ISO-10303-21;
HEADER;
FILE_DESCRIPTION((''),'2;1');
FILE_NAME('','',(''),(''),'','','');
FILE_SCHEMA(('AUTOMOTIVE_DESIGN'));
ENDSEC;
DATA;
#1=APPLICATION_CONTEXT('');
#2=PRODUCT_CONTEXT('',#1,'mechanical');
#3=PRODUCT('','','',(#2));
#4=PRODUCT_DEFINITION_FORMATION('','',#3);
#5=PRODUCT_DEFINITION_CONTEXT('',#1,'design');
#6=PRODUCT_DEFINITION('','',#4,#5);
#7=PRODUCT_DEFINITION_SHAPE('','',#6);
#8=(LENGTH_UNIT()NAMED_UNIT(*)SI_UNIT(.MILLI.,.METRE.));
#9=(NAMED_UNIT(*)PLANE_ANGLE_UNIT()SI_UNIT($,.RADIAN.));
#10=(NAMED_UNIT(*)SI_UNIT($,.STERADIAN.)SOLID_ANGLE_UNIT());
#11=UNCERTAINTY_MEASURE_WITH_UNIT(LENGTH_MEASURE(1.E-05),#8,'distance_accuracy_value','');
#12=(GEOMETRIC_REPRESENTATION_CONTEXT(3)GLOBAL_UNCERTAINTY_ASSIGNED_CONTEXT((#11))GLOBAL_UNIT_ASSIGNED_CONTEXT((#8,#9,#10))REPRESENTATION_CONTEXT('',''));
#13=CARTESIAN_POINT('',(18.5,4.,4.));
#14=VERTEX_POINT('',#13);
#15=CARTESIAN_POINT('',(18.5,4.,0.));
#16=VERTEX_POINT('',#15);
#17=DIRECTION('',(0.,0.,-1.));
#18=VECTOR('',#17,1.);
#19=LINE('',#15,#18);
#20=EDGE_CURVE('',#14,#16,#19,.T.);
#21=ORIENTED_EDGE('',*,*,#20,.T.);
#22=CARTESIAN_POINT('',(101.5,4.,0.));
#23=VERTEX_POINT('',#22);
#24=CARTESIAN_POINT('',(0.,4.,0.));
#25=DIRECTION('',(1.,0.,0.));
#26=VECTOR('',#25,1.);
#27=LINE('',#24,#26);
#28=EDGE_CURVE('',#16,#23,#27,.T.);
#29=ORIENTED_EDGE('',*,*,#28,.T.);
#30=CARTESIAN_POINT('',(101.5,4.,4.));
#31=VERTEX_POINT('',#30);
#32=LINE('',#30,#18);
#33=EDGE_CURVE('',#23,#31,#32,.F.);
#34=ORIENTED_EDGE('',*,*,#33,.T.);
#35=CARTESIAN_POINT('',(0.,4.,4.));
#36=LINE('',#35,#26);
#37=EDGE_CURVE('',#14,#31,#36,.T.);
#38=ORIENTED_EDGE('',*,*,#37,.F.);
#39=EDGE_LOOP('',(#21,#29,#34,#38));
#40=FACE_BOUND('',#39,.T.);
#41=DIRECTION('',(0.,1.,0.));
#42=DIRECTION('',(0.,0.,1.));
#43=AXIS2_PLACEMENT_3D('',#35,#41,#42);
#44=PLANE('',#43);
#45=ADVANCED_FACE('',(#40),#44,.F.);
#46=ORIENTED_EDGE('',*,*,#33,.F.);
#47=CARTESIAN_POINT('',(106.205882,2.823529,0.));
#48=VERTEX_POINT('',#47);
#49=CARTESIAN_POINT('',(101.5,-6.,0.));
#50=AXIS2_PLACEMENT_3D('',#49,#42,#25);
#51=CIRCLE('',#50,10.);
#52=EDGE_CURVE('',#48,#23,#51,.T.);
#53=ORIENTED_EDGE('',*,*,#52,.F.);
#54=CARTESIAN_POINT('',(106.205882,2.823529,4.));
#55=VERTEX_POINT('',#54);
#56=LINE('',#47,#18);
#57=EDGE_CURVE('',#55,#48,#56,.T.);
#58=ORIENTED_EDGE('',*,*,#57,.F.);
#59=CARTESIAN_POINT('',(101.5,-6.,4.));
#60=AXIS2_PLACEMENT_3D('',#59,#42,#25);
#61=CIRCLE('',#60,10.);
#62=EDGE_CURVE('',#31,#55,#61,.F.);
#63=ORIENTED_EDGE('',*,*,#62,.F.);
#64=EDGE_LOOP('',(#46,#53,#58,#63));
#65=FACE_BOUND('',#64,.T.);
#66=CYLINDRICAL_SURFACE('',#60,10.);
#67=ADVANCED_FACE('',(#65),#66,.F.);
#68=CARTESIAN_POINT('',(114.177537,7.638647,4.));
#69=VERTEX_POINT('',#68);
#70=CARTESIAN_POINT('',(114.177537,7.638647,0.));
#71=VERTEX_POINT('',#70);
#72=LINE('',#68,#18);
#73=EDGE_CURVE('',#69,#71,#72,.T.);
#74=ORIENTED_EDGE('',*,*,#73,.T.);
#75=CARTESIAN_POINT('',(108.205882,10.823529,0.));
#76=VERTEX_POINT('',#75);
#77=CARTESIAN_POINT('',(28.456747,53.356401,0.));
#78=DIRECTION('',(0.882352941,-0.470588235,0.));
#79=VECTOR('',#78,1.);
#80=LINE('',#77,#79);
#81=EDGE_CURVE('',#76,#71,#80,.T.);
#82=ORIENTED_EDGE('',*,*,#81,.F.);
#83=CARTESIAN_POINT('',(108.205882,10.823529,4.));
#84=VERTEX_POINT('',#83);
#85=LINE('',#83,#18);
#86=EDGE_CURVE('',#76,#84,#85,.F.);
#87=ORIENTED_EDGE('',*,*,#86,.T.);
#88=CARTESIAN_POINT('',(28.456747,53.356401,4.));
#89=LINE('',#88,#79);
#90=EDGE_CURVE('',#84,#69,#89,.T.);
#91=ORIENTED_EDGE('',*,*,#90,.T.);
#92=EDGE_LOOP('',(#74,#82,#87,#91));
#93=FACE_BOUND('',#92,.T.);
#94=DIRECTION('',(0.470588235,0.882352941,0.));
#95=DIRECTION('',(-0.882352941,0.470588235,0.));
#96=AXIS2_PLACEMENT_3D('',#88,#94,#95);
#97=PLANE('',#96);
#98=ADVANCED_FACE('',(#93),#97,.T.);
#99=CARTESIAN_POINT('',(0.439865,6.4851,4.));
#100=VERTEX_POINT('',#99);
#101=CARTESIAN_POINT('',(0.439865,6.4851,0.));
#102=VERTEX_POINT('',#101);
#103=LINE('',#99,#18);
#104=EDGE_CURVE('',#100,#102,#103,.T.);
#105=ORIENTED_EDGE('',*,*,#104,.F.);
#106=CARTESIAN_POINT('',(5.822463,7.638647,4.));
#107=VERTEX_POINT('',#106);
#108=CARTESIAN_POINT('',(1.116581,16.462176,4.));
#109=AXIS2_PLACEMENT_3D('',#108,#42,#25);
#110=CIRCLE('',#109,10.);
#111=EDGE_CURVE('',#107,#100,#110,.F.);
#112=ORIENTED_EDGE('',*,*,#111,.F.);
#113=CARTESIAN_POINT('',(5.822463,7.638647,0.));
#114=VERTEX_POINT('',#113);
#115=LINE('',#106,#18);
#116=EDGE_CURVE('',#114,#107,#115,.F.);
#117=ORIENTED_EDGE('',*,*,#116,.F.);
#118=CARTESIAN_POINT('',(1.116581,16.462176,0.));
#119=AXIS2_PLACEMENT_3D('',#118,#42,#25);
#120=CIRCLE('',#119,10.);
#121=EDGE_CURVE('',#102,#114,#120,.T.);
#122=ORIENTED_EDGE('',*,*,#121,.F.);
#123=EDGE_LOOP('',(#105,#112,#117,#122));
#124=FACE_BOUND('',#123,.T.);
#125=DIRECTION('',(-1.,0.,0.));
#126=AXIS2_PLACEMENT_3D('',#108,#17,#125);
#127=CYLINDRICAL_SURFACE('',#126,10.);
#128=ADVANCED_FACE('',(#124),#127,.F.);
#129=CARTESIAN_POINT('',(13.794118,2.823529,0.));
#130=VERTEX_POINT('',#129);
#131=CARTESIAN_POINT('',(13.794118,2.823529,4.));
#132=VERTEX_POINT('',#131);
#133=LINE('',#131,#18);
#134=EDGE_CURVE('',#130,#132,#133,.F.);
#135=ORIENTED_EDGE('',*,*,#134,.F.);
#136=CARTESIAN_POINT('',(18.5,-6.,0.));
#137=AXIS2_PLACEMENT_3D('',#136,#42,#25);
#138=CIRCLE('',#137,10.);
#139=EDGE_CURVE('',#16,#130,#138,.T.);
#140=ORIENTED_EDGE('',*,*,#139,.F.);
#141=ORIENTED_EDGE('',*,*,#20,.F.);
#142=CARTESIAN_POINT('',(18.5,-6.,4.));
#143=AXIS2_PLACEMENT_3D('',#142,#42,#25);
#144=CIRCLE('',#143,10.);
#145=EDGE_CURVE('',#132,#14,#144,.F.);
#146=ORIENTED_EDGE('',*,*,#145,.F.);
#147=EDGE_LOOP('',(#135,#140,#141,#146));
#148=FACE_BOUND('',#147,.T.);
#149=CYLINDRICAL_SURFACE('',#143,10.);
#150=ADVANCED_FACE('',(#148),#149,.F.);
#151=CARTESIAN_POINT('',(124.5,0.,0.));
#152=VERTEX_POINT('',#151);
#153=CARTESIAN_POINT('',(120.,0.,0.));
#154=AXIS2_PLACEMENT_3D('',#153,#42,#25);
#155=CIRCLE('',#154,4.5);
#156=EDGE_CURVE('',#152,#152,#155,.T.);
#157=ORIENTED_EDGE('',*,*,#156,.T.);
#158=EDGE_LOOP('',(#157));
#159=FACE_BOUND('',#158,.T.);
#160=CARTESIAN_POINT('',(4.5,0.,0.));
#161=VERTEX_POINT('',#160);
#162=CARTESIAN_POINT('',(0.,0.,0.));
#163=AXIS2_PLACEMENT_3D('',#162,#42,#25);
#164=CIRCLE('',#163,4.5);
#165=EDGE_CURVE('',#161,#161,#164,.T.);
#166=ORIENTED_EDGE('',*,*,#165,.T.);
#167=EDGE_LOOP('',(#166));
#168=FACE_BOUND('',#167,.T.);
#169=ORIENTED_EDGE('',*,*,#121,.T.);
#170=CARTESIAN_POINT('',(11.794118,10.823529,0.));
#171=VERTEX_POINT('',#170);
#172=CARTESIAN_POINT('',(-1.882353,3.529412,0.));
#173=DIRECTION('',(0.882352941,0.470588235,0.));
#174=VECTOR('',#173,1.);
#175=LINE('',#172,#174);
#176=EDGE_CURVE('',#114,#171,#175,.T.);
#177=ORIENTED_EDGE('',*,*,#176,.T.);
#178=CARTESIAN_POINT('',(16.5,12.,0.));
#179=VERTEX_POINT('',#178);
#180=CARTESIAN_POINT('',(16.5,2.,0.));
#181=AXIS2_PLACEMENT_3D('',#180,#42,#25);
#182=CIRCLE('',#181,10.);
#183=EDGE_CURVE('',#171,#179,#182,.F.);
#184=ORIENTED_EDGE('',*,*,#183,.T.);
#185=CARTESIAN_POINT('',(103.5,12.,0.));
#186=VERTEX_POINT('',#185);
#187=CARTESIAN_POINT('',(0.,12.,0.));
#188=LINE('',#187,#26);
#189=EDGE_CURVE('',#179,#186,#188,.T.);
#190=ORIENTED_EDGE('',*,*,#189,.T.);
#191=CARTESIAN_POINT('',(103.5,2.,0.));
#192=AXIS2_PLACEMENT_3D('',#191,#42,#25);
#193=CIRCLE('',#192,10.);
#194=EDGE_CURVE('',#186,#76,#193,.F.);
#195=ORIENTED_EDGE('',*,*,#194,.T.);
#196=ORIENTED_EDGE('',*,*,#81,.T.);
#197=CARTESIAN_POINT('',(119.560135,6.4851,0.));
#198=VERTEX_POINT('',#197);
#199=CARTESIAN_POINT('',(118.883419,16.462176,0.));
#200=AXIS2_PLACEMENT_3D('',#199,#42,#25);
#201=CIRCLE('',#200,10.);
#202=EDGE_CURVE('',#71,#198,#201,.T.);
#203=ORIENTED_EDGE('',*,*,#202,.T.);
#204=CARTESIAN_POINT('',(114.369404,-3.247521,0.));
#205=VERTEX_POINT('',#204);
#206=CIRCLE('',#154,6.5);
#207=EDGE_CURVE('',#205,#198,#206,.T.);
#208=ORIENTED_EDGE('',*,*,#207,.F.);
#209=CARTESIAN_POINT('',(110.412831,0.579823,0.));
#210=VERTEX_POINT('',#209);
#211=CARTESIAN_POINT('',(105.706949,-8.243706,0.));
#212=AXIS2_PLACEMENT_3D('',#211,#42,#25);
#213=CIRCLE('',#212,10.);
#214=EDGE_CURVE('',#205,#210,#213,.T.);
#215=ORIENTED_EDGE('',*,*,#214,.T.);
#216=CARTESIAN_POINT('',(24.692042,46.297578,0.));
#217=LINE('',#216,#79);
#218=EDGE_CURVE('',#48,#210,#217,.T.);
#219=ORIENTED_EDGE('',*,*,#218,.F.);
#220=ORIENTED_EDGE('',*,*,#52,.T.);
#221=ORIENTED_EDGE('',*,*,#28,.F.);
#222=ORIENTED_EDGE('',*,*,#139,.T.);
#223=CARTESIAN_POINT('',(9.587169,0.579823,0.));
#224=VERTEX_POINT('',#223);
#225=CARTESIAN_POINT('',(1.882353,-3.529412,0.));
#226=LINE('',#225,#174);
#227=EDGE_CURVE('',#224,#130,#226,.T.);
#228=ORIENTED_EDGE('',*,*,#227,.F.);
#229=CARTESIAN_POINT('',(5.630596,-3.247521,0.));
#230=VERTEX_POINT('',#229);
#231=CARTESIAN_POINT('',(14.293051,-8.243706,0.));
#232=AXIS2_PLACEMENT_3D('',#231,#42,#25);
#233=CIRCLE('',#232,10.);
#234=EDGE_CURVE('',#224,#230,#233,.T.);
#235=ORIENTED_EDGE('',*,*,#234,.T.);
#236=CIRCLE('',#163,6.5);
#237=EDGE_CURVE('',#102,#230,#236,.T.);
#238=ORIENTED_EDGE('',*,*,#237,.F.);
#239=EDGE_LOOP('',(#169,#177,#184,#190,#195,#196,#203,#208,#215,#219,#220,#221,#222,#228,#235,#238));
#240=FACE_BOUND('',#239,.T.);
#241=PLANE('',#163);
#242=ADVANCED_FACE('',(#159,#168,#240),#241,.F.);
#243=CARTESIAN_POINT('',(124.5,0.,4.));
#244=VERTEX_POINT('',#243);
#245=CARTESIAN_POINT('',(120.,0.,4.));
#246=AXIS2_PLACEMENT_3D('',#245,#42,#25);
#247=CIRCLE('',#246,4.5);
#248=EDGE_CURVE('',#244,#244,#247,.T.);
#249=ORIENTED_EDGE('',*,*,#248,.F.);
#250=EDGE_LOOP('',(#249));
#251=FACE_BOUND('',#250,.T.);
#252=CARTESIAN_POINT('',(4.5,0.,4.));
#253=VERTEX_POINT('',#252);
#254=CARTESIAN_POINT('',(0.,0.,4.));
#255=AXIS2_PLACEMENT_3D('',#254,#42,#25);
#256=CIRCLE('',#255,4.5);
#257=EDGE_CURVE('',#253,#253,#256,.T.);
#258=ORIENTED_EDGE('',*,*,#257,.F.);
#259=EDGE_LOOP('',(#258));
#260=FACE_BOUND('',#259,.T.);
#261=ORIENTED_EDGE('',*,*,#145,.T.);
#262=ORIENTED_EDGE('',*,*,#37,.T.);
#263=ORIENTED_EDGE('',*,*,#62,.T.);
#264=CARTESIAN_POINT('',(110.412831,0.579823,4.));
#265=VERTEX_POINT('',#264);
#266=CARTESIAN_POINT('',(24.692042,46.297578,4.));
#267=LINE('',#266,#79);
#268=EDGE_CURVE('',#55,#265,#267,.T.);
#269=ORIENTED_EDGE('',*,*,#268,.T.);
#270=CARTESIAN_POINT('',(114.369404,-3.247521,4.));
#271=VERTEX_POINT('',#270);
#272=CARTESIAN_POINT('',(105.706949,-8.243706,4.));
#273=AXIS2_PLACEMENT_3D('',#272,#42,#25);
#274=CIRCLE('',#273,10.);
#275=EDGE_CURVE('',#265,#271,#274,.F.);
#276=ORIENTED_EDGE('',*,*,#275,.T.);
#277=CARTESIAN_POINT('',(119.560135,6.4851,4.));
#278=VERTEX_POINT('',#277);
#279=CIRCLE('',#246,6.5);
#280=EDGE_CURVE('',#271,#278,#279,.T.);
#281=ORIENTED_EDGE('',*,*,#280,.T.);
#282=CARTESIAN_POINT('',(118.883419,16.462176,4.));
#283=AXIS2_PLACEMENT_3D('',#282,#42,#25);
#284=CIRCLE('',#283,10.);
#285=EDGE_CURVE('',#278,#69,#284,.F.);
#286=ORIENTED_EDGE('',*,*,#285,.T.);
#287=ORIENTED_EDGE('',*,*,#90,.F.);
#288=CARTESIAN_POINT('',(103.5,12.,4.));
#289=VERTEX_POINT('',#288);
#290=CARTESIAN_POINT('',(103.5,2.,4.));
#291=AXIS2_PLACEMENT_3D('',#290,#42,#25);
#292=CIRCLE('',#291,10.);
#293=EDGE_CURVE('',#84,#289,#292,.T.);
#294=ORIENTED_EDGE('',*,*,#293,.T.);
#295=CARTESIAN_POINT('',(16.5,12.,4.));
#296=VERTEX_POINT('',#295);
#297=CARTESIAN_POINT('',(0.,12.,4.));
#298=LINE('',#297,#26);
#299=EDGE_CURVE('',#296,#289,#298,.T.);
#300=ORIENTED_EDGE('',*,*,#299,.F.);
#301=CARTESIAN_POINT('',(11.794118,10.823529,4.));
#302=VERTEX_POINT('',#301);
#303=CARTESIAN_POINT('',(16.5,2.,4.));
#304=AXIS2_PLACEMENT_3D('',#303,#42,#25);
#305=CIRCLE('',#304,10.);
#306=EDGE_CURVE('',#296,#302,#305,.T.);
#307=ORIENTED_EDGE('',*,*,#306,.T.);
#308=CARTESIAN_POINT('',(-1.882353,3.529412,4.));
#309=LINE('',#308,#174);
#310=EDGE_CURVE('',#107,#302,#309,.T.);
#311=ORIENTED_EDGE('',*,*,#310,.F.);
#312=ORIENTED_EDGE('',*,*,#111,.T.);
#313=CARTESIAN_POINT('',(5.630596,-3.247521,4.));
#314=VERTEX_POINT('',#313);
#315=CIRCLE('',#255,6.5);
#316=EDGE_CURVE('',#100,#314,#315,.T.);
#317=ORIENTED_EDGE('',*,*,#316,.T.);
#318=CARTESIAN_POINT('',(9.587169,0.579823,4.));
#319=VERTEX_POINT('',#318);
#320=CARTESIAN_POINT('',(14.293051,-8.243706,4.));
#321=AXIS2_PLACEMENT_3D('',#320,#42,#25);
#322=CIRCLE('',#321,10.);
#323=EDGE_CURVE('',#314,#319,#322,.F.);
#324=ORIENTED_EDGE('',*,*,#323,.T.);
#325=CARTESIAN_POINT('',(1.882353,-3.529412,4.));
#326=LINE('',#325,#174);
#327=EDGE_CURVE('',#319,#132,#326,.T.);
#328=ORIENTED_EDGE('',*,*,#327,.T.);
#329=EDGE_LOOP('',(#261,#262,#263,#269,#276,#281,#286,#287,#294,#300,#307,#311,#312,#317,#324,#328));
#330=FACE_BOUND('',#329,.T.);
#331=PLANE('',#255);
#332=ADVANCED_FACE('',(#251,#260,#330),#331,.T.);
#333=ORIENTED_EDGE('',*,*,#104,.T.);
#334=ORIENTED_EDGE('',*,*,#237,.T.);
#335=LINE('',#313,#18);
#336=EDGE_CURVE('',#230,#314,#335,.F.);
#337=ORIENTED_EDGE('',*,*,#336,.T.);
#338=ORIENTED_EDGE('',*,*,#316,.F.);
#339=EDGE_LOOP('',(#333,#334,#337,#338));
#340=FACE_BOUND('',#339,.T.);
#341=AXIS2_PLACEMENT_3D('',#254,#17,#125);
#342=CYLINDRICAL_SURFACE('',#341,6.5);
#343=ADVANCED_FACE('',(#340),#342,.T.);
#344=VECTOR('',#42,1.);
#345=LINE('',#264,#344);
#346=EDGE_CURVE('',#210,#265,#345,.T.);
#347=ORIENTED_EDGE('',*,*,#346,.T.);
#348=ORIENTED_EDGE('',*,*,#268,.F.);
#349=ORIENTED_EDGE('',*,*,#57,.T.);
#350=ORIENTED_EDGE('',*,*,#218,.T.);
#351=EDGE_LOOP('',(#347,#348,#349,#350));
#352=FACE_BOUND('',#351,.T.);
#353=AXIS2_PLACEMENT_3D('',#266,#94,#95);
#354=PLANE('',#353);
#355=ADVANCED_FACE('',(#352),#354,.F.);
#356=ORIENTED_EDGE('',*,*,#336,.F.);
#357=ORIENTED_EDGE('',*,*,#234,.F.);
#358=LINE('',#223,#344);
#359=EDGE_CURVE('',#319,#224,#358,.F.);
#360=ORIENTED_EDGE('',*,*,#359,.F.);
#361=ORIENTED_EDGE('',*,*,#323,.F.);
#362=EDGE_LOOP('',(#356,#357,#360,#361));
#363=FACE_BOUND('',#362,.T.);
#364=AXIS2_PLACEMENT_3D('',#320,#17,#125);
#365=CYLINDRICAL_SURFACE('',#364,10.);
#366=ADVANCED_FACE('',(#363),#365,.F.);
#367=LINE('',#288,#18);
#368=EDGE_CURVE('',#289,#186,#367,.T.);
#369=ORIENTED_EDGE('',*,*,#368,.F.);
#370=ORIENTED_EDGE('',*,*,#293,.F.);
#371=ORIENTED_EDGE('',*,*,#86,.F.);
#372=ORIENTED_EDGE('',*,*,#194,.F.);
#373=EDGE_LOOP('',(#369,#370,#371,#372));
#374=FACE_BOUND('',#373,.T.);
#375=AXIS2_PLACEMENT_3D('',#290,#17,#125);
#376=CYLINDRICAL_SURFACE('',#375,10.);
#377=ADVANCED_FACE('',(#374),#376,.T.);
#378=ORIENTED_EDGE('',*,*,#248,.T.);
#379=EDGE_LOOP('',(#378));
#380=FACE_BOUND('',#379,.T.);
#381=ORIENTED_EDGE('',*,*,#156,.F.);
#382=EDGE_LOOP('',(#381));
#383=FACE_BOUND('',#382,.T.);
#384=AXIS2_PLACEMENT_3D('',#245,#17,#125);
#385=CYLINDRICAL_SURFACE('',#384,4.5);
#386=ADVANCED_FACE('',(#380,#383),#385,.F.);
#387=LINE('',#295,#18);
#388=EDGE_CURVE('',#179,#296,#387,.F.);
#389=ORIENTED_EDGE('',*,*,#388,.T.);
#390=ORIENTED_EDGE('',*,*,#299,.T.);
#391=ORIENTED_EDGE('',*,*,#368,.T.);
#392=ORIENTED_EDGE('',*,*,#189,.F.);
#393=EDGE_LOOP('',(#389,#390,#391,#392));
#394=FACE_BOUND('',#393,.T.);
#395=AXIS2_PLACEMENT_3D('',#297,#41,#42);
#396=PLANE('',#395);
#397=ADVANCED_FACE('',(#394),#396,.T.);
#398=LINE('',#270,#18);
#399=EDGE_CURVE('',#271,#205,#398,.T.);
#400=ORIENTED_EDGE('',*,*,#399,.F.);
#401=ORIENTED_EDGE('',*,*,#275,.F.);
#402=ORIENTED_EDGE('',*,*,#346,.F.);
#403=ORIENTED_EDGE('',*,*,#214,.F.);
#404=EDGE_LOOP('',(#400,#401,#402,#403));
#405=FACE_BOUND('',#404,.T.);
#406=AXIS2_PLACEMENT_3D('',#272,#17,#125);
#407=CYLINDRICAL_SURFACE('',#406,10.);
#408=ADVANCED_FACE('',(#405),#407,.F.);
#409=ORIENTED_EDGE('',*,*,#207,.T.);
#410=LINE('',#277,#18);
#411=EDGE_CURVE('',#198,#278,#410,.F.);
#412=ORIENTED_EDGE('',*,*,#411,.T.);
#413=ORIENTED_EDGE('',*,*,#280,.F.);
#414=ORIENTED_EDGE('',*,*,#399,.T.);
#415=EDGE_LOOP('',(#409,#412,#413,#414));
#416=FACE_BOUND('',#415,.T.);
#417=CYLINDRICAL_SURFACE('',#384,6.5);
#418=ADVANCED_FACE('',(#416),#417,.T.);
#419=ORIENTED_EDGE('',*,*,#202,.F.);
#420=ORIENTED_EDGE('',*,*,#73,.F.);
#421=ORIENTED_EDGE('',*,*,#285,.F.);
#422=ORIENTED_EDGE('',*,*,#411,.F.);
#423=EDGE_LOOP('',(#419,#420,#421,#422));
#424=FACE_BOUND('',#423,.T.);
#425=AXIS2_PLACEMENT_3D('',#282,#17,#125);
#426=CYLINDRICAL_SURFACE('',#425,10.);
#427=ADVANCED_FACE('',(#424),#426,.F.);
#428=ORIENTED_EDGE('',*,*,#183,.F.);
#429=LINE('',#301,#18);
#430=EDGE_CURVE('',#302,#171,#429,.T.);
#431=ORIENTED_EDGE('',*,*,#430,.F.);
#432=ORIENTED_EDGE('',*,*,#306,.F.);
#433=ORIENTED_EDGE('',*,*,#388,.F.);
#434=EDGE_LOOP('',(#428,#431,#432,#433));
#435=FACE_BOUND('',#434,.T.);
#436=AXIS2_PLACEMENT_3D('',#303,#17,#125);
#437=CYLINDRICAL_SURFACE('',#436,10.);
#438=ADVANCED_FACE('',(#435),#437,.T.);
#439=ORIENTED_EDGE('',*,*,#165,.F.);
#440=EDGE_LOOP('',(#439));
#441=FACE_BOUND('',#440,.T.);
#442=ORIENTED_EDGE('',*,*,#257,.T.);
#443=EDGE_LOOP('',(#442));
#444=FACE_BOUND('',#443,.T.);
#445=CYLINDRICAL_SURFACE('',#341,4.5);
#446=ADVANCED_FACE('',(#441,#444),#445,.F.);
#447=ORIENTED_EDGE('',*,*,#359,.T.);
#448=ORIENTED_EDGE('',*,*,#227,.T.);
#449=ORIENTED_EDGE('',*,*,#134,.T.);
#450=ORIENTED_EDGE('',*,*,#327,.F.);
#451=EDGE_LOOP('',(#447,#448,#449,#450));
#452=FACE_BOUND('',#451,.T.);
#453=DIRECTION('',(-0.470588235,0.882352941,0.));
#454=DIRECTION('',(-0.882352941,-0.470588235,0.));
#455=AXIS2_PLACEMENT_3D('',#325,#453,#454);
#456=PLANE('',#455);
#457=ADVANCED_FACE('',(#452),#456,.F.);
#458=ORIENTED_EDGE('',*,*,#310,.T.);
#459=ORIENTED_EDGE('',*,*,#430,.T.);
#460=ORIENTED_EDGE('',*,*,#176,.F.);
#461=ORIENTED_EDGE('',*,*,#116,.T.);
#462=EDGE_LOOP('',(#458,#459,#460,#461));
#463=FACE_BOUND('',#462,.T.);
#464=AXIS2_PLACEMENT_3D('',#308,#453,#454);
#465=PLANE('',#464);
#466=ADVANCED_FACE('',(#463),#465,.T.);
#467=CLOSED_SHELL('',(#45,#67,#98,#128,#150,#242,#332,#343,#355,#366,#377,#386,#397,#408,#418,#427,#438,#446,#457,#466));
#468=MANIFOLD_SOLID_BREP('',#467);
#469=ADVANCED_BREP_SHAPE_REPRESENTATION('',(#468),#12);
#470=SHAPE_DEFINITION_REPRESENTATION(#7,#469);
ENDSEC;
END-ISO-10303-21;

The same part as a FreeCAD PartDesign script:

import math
import FreeCAD as App
import Part
import Sketcher
from FreeCAD import Vector
Q = App.Units.Quantity


def edges_at(feature, points):
    """Names of the edges that pass closest to the given points."""
    edges = feature.Shape.Edges
    near = lambda p: min(range(len(edges)), key=lambda i: edges[i].distToShape(Part.Vertex(*p))[0])
    return sorted({f"Edge{near(p) + 1}" for p in points})

doc = App.newDocument("Part")
body = doc.addObject("PartDesign::Body", "Body")

sketch1 = doc.addObject("Sketcher::SketchObject", "Sketch")
body.addObject(sketch1)
sketch1.AttachmentSupport = (doc.XY_Plane, [""])
sketch1.MapMode = "FlatFace"
sketch1.addGeometry(Part.LineSegment(Vector(6.4, -1.1, 0), Vector(16, 4, 0)), False)
sketch1.addGeometry(Part.LineSegment(Vector(16, 4, 0), Vector(104, 4, 0)), False)
sketch1.addGeometry(Part.LineSegment(Vector(104, 4, 0), Vector(113.6, -1.1, 0)), False)
sketch1.addGeometry(Part.ArcOfCircle(Part.Circle(Vector(120, 0, 0), Vector(0, 0, 1), 6.5), math.radians(-170), math.radians(114)), False)
sketch1.addGeometry(Part.LineSegment(Vector(117.4, 5.9, 0), Vector(106, 12, 0)), False)
sketch1.addGeometry(Part.LineSegment(Vector(106, 12, 0), Vector(14, 12, 0)), False)
sketch1.addGeometry(Part.LineSegment(Vector(14, 12, 0), Vector(2.6, 5.9, 0)), False)
sketch1.addGeometry(Part.ArcOfCircle(Part.Circle(Vector(0, 0, 0), Vector(0, 0, 1), 6.5), math.radians(66), math.radians(350)), False)
sketch1.addGeometry(Part.Circle(Vector(0, 0, 0), Vector(0, 0, 1), 4.5), False)
sketch1.addGeometry(Part.Circle(Vector(120, 0, 0), Vector(0, 0, 1), 4.5), False)
sketch1.addConstraint(Sketcher.Constraint("Coincident", 0, 2, 1, 1))
sketch1.addConstraint(Sketcher.Constraint("Coincident", 1, 2, 2, 1))
sketch1.addConstraint(Sketcher.Constraint("Coincident", 2, 2, 3, 1))
sketch1.addConstraint(Sketcher.Constraint("Coincident", 3, 2, 4, 1))
sketch1.addConstraint(Sketcher.Constraint("Coincident", 4, 2, 5, 1))
sketch1.addConstraint(Sketcher.Constraint("Coincident", 5, 2, 6, 1))
sketch1.addConstraint(Sketcher.Constraint("Coincident", 6, 2, 7, 1))
sketch1.addConstraint(Sketcher.Constraint("Coincident", 7, 2, 0, 1))
sketch1.addConstraint(Sketcher.Constraint("Horizontal", 1))
sketch1.addConstraint(Sketcher.Constraint("Horizontal", 5))
sketch1.addConstraint(Sketcher.Constraint("Coincident", 7, 3, -1, 1))
sketch1.addConstraint(Sketcher.Constraint("Coincident", 8, 3, -1, 1))
sketch1.addConstraint(Sketcher.Constraint("Coincident", 9, 3, 3, 3))
sketch1.addConstraint(Sketcher.Constraint("Equal", 3, 7))
sketch1.addConstraint(Sketcher.Constraint("Equal", 8, 9))
sketch1.addConstraint(Sketcher.Constraint("PointOnObject", 3, 3, -1))
sketch1.addConstraint(Sketcher.Constraint("Parallel", 2, 4))
sketch1.addConstraint(Sketcher.Constraint("Parallel", 0, 6))
sketch1.addConstraint(Sketcher.Constraint("Horizontal", 3, 2, 6, 2))
sketch1.addConstraint(Sketcher.Constraint("Horizontal", 2, 2, 7, 2))
sketch1.addConstraint(Sketcher.Constraint("Equal", 0, 2))
sketch1.addConstraint(Sketcher.Constraint("Diameter", 8, Q("9 mm")))
sketch1.addConstraint(Sketcher.Constraint("Radius", 3, Q("6.5 mm")))
sketch1.addConstraint(Sketcher.Constraint("DistanceX", 1, 1, 1, 2, Q("88 mm")))
sketch1.addConstraint(Sketcher.Constraint("DistanceX", 5, 2, 5, 1, Q("92 mm")))
sketch1.addConstraint(Sketcher.Constraint("DistanceX", -1, 1, 3, 3, Q("120 mm")))
sketch1.addConstraint(Sketcher.Constraint("DistanceY", -1, 1, 0, 2, Q("4 mm")))
sketch1.addConstraint(Sketcher.Constraint("DistanceY", -1, 1, 4, 2, Q("12 mm")))
sketch1.addConstraint(Sketcher.Constraint("DistanceX", -1, 1, 3, 2, Q("117.361639 mm")))
pad1 = doc.addObject("PartDesign::Pad", "Pad")
body.addObject(pad1)
pad1.Profile = sketch1
pad1.Length = 4
doc.recompute()

fillet = doc.addObject("PartDesign::Fillet", "Fillet")
body.addObject(fillet)
fillet.Base = (pad1, edges_at(pad1, [
    (104, 4, 2),
    (16, 4, 2),
    (6.403, -1.118, 2),
    (2.638, 5.94, 2),
    (14, 12, 2),
    (106, 12, 2),
    (117.362, 5.94, 2),
    (113.597, -1.118, 2),
]))
fillet.Radius = 10

doc.recompute()
